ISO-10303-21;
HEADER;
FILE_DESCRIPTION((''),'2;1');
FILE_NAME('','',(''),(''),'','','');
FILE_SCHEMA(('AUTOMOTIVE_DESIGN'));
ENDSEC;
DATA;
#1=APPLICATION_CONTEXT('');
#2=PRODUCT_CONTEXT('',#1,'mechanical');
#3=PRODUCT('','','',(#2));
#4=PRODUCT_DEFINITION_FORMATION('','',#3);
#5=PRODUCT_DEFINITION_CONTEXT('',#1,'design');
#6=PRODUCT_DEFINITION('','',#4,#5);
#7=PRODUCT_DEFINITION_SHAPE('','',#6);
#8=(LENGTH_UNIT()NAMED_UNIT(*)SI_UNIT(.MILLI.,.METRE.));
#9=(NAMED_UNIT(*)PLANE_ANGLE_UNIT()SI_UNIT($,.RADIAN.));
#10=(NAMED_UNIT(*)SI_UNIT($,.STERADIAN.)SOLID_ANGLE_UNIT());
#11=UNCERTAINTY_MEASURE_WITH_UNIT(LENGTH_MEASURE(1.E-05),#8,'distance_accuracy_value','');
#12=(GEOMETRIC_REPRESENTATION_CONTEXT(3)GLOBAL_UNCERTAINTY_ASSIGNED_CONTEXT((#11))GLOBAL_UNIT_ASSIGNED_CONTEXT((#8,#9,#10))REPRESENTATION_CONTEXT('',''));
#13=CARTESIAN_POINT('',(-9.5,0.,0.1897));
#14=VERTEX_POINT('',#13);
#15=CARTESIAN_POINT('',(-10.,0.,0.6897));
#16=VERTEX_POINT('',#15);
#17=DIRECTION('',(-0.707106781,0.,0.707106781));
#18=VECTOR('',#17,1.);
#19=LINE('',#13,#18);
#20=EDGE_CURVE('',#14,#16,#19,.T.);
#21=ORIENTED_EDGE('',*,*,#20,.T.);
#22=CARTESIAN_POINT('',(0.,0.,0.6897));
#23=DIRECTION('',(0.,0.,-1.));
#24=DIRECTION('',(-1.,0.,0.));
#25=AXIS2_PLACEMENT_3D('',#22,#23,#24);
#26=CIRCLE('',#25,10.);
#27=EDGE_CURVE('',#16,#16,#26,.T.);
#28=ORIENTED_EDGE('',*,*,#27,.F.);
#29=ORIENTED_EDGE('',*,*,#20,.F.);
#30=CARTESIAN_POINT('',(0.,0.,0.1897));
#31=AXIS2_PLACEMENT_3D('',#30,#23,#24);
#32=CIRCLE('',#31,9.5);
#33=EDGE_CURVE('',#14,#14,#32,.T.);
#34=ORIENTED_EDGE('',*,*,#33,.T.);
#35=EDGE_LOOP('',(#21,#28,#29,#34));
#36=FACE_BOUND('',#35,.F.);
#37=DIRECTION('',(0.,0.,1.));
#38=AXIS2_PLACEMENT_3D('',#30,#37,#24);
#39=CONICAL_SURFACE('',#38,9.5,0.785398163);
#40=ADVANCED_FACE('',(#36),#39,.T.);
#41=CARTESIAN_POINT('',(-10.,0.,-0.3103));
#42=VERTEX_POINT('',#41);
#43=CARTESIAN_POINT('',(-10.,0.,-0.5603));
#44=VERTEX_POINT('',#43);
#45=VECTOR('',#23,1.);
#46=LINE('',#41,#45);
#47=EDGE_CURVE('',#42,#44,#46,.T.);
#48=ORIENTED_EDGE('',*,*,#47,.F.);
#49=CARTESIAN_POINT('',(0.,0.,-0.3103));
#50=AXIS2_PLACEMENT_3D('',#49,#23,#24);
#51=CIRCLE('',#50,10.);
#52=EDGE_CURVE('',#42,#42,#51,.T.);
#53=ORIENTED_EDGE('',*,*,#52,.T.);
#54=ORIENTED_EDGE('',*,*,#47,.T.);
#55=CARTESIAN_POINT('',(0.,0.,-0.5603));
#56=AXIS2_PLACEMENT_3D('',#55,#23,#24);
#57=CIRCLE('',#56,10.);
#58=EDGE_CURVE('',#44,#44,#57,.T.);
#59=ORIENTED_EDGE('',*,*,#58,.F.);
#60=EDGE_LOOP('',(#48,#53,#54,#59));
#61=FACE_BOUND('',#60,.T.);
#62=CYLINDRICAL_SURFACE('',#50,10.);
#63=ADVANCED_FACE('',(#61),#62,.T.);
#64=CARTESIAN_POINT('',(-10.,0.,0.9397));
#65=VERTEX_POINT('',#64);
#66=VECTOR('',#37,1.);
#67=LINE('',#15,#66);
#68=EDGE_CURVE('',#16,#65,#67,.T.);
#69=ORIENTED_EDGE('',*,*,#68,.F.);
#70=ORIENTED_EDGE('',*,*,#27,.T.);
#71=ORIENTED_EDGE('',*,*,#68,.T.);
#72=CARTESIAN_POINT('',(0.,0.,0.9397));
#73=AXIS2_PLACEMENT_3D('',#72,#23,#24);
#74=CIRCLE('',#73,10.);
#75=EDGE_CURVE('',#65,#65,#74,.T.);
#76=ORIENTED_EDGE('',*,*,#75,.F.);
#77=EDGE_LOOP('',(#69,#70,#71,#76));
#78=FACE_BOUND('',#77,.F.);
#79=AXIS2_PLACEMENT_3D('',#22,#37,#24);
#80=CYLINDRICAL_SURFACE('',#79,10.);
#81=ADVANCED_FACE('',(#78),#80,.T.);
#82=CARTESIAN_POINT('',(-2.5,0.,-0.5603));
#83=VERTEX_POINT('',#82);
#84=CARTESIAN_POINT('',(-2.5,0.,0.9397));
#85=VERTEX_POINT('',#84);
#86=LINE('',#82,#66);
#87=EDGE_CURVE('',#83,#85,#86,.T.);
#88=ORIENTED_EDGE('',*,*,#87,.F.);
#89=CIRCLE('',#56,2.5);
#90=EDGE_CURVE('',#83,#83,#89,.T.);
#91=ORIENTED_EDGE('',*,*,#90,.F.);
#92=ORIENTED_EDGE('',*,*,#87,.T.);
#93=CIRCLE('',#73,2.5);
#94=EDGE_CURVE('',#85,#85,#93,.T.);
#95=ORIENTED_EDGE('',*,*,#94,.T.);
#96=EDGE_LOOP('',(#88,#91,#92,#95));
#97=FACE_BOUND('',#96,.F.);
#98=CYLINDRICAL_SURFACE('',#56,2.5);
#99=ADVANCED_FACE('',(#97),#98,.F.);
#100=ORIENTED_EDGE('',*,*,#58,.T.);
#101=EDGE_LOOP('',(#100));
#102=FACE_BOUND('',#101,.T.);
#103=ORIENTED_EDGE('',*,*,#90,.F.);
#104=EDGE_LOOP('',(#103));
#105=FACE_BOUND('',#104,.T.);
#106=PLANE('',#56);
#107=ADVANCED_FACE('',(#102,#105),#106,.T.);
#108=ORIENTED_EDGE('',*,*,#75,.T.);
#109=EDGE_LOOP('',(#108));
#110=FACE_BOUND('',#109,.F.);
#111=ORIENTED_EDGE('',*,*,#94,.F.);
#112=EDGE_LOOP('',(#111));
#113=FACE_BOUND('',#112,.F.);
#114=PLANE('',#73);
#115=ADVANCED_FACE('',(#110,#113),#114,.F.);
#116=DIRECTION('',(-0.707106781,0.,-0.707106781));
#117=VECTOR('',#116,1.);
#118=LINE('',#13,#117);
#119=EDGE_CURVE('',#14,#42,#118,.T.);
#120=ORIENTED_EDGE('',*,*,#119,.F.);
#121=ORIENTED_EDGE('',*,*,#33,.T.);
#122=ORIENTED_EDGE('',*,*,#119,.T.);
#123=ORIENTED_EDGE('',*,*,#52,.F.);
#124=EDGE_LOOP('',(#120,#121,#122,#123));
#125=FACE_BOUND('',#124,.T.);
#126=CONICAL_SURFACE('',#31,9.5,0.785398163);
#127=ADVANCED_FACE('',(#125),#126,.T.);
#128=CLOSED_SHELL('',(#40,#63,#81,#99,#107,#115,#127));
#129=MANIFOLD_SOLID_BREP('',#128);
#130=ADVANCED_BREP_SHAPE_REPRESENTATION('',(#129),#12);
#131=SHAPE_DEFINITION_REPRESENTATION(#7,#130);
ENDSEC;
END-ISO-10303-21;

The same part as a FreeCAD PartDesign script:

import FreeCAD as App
import Part
import Sketcher

doc = App.newDocument("Part")
params = doc.addObject("Spreadsheet::Sheet", "Params")
for row, (alias, value) in enumerate([
    ("sketch1_height", "1.5 mm"),
    ("sketch1_width", "10 mm"),
    ("revolution_angle", "360 deg"),
    ("sketch2_diameter", "5 mm"),
    ("pocket1_length", "10 mm"),
], start=1):
    params.set(f"A{row}", alias)
    params.set(f"B{row}", "=" + value)
    params.setAlias(f"B{row}", alias)

body = doc.addObject("PartDesign::Body", "Body")

# Sketch on XZ plane
sketch1 = body.newObject("Sketcher::SketchObject", "Sketch")
sketch1.AttachmentSupport = (doc.getObject("XZ_Plane"), [""])
sketch1.MapMode = "FlatFace"
sketch1.addGeometry([
    Part.LineSegment(App.Vector(-10, -0.3103, 0), App.Vector(-9.5, 0.1897, 0)),  # 0
    Part.LineSegment(App.Vector(-9.5, 0.1897, 0), App.Vector(-10, 0.6897, 0)),  # 1
    Part.LineSegment(App.Vector(-10, 0.6897, 0), App.Vector(-10, 0.9397, 0)),  # 2
    Part.LineSegment(App.Vector(-10, 0.9397, 0), App.Vector(0, 0.9397, 0)),  # 3
    Part.LineSegment(App.Vector(0, 0.9397, 0), App.Vector(0, -0.5603, 0)),  # 4
    Part.LineSegment(App.Vector(0, -0.5603, 0), App.Vector(-10, -0.5603, 0)),  # 5
    Part.LineSegment(App.Vector(-10, -0.5603, 0), App.Vector(-10, -0.3103, 0)),  # 6
], False)
sketch1.addConstraint([
    Sketcher.Constraint("Coincident", 0, 2, 1, 1),
    Sketcher.Constraint("Coincident", 1, 2, 2, 1),
    Sketcher.Constraint("Coincident", 2, 2, 3, 1),
    Sketcher.Constraint("Coincident", 3, 2, 4, 1),
    Sketcher.Constraint("Coincident", 4, 2, 5, 1),
    Sketcher.Constraint("Coincident", 5, 2, 6, 1),
    Sketcher.Constraint("Coincident", 6, 2, 0, 1),
    Sketcher.Constraint("Vertical", 2),
    Sketcher.Constraint("Horizontal", 3),
    Sketcher.Constraint("Vertical", 4),
    Sketcher.Constraint("Horizontal", 5),
    Sketcher.Constraint("Vertical", 6),
    Sketcher.Constraint("PointOnObject", 3, 2, -2),
    Sketcher.Constraint("Perpendicular", 0, 1),
    Sketcher.Constraint("Vertical", 2, 2, 5, 2),
    Sketcher.Constraint("Equal", 2, 6),
    Sketcher.Constraint("Equal", 0, 1),
    Sketcher.Constraint("DistanceY", 4, 2, 4, 1, 1.5),
    Sketcher.Constraint("DistanceY", 6, 2, 1, 2, 1.0),
    Sketcher.Constraint("DistanceX", 3, 1, 3, 2, 10.0),
    Sketcher.Constraint("DistanceY", -1, 1, 0, 2, 0.1897),
])
sketch1.setExpression("Constraints[17]", "Params.sketch1_height")
sketch1.setExpression("Constraints[19]", "Params.sketch1_width")
revolution = body.newObject("PartDesign::Revolution", "Revolution")
revolution.Profile = sketch1
revolution.ReferenceAxis = (sketch1, ["V_Axis"])
revolution.setExpression("Angle", "Params.revolution_angle")

# Sketch on XY plane
sketch2 = body.newObject("Sketcher::SketchObject", "Sketch001")
sketch2.AttachmentSupport = (doc.getObject("XY_Plane"), [""])
sketch2.MapMode = "FlatFace"
sketch2.AttachmentOffset = App.Placement(App.Vector(0, 0, -0.5603), App.Rotation())
sketch2.addGeometry(Part.Circle(App.Vector(0, 0, 0), App.Vector(0, 0, 1), 2.5), False)
sketch2.addConstraint([
    Sketcher.Constraint("Coincident", 0, 3, -1, 1),
    Sketcher.Constraint("Diameter", 0, 5.0),
])
sketch2.setExpression("Constraints[1]", "Params.sketch2_diameter")
pocket1 = body.newObject("PartDesign::Pocket", "Pocket")
pocket1.Profile = sketch2
pocket1.setExpression("Length", "Params.pocket1_length")
pocket1.Reversed = True

doc.recompute()
